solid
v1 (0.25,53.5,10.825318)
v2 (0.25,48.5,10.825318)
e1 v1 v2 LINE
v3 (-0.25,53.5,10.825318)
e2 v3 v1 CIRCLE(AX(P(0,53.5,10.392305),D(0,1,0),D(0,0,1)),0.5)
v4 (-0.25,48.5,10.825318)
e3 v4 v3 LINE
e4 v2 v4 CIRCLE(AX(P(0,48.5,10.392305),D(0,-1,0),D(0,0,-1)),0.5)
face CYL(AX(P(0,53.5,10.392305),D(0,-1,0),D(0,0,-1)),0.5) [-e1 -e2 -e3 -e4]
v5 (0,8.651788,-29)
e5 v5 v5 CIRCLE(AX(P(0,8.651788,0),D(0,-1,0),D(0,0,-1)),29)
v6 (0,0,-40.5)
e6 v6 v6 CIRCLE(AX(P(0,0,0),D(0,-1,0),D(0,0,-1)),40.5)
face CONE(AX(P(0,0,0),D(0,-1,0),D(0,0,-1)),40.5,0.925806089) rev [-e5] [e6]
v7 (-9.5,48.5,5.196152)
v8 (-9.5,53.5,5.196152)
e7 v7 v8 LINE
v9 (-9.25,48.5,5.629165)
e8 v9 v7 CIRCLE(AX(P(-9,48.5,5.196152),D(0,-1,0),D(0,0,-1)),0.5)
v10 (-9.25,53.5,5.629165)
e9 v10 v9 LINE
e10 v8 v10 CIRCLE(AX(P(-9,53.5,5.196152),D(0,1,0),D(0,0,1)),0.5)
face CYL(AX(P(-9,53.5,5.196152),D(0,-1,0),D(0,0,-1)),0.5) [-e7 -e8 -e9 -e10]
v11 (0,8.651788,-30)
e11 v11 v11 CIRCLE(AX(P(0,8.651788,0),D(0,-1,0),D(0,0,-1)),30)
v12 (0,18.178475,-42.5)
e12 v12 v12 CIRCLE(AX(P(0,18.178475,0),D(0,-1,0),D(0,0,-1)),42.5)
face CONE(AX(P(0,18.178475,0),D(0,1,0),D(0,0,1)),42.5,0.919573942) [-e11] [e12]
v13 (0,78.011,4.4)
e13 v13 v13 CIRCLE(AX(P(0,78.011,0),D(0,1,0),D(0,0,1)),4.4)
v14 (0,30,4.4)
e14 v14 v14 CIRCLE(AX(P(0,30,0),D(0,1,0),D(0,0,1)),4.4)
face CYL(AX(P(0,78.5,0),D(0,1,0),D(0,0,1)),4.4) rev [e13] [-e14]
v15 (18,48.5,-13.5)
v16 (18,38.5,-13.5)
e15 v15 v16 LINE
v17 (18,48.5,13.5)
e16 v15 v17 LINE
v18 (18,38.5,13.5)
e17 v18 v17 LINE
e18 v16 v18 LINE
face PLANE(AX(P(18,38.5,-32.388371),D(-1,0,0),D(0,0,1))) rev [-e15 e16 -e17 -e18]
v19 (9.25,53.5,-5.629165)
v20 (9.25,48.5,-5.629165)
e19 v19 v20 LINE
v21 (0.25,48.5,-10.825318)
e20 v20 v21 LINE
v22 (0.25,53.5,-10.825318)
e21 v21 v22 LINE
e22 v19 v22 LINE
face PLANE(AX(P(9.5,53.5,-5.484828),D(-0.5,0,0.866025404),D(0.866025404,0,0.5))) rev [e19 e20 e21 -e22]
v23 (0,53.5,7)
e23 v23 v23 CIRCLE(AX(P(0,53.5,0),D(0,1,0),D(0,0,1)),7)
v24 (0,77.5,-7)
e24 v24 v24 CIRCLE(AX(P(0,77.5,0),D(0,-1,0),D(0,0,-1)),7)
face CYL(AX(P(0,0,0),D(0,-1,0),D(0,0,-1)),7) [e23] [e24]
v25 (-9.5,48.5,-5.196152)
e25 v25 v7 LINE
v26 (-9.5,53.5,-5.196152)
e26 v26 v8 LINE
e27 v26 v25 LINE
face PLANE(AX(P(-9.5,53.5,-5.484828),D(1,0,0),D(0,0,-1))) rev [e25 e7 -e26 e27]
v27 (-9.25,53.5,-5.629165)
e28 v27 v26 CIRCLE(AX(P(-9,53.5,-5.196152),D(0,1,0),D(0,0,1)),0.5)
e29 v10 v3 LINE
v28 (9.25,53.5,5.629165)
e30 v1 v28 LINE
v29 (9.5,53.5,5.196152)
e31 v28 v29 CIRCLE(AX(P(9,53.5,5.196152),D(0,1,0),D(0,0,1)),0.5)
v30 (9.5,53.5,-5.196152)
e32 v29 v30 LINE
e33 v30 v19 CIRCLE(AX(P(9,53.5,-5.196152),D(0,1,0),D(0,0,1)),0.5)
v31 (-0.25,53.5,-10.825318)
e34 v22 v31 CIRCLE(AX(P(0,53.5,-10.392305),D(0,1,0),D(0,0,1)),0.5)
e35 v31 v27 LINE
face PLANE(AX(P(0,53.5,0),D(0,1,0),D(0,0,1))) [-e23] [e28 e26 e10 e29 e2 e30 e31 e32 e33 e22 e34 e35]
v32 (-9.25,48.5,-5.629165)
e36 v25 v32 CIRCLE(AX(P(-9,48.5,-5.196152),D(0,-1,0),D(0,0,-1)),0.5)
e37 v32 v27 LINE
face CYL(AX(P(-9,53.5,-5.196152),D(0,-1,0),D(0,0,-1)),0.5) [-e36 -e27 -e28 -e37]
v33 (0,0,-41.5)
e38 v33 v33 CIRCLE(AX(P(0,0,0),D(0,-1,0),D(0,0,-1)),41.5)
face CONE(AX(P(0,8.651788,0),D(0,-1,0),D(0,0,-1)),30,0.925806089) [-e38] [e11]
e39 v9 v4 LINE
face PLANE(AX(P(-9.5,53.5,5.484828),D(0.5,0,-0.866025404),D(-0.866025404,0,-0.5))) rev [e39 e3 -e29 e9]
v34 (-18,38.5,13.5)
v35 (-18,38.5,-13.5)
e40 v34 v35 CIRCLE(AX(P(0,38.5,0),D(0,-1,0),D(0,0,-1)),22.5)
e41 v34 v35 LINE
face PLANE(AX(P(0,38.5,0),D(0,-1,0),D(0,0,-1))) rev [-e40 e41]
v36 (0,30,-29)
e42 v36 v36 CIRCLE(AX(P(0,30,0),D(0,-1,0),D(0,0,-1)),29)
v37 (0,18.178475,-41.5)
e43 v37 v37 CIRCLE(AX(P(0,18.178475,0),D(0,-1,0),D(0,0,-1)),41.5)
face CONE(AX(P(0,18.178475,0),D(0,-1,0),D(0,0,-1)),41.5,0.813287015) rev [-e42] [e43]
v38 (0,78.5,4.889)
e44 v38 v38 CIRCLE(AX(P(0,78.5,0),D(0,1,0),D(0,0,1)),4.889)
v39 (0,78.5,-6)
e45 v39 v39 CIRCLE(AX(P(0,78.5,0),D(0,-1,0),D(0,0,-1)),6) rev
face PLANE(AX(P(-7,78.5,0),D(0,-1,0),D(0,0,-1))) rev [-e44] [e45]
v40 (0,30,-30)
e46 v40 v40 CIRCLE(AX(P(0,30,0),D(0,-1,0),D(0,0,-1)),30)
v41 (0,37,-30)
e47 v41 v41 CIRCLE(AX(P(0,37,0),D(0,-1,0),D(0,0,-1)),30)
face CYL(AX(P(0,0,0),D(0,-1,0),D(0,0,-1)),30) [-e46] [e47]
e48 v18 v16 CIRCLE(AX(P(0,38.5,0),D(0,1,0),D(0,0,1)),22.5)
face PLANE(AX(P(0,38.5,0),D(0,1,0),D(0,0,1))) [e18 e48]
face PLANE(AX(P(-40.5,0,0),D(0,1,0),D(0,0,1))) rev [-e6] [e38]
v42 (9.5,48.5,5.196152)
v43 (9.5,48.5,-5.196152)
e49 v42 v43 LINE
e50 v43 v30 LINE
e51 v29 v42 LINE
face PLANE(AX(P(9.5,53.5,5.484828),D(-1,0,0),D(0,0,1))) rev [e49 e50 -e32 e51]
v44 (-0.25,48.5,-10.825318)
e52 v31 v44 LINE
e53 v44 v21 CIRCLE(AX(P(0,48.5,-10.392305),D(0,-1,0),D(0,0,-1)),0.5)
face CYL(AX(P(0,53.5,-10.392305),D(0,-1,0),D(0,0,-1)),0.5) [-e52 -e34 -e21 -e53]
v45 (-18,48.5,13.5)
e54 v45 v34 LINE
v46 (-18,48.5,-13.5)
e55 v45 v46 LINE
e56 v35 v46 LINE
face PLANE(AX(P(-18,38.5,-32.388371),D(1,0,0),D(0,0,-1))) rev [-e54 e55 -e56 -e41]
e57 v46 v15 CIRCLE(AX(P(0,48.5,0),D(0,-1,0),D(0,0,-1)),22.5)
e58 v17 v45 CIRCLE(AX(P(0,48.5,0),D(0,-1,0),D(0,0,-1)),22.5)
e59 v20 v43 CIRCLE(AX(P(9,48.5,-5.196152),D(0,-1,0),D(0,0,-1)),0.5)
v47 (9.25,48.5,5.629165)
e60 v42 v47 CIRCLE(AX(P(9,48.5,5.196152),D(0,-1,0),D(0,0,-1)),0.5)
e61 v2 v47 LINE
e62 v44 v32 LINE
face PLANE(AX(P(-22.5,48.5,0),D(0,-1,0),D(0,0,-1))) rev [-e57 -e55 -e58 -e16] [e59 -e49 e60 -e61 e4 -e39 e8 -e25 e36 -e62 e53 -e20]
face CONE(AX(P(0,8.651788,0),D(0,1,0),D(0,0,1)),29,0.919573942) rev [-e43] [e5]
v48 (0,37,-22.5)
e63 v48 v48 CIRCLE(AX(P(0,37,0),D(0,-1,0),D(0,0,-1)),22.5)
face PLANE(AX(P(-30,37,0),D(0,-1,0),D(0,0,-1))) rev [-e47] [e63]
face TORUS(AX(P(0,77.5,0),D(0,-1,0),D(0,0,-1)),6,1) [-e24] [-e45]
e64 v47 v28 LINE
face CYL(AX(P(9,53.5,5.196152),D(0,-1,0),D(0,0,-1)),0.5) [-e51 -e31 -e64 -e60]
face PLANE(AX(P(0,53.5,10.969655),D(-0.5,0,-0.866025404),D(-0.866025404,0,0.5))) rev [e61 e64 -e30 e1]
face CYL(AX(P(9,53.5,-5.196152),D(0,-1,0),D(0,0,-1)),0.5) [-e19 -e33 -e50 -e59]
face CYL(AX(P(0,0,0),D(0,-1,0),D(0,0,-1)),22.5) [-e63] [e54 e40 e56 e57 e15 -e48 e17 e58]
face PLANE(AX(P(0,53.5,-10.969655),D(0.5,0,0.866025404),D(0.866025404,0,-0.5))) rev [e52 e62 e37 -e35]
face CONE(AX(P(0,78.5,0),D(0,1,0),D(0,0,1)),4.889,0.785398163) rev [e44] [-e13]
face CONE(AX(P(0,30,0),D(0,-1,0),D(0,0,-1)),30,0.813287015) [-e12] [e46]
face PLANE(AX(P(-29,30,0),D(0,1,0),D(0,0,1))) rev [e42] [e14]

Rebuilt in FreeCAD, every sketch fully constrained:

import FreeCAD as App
import Part
import Sketcher

V = App.Vector
Q = App.Units.Quantity


def edges_at(feature, points):
    """Names of the edges that pass closest to the given points."""
    edges = feature.Shape.Edges
    near = lambda p: min(range(len(edges)), key=lambda i: edges[i].distToShape(Part.Vertex(*p))[0])
    return sorted({f"Edge{near(p) + 1}" for p in points})

doc = App.newDocument("Part")
body = doc.addObject("PartDesign::Body", "Body")

# Sketch on XY plane
sketch1 = body.newObject("Sketcher::SketchObject", "Sketch")
sketch1.AttachmentSupport = (doc.getObject("XY_Plane"), [""])
sketch1.MapMode = "FlatFace"
sketch1.addGeometry([
    Part.LineSegment(V(-41.5, 0, 0), V(-40.5, 0, 0)),  # 0
    Part.LineSegment(V(-40.5, 0, 0), V(-29, 8.7, 0)),  # 1
    Part.LineSegment(V(-29, 8.7, 0), V(-41.5, 18.2, 0)),  # 2
    Part.LineSegment(V(-41.5, 18.2, 0), V(-29, 30, 0)),  # 3
    Part.LineSegment(V(-29, 30, 0), V(0, 30, 0)),  # 4
    Part.LineSegment(V(0, 30, 0), V(0, 78.5, 0)),  # 5
    Part.LineSegment(V(0, 78.5, 0), V(-7, 78.5, 0)),  # 6
    Part.LineSegment(V(-7, 78.5, 0), V(-7, 48.5, 0)),  # 7
    Part.LineSegment(V(-7, 48.5, 0), V(-22.5, 48.5, 0)),  # 8
    Part.LineSegment(V(-22.5, 48.5, 0), V(-22.5, 37, 0)),  # 9
    Part.LineSegment(V(-22.5, 37, 0), V(-30, 37, 0)),  # 10
    Part.LineSegment(V(-30, 37, 0), V(-30, 30, 0)),  # 11
    Part.LineSegment(V(-30, 30, 0), V(-42.5, 18.2, 0)),  # 12
    Part.LineSegment(V(-42.5, 18.2, 0), V(-30, 8.7, 0)),  # 13
    Part.LineSegment(V(-30, 8.7, 0), V(-41.5, 0, 0)),  # 14
], False)
sketch1.addConstraint([
    Sketcher.Constraint("Coincident", 0, 2, 1, 1),
    Sketcher.Constraint("Coincident", 1, 2, 2, 1),
    Sketcher.Constraint("Coincident", 2, 2, 3, 1),
    Sketcher.Constraint("Coincident", 3, 2, 4, 1),
    Sketcher.Constraint("Coincident", 4, 2, 5, 1),
    Sketcher.Constraint("Coincident", 5, 2, 6, 1),
    Sketcher.Constraint("Coincident", 6, 2, 7, 1),
    Sketcher.Constraint("Coincident", 7, 2, 8, 1),
    Sketcher.Constraint("Coincident", 8, 2, 9, 1),
    Sketcher.Constraint("Coincident", 9, 2, 10, 1),
    Sketcher.Constraint("Coincident", 10, 2, 11, 1),
    Sketcher.Constraint("Coincident", 11, 2, 12, 1),
    Sketcher.Constraint("Coincident", 12, 2, 13, 1),
    Sketcher.Constraint("Coincident", 13, 2, 14, 1),
    Sketcher.Constraint("Coincident", 14, 2, 0, 1),
    Sketcher.Constraint("Horizontal", 0),
    Sketcher.Constraint("Horizontal", 4),
    Sketcher.Constraint("Vertical", 5),
    Sketcher.Constraint("Horizontal", 6),
    Sketcher.Constraint("Vertical", 7),
    Sketcher.Constraint("Horizontal", 8),
    Sketcher.Constraint("Vertical", 9),
    Sketcher.Constraint("Horizontal", 10),
    Sketcher.Constraint("Vertical", 11),
    Sketcher.Constraint("PointOnObject", 0, 2, -1),
    Sketcher.Constraint("PointOnObject", 4, 2, -2),
    Sketcher.Constraint("Parallel", 3, 12),
    Sketcher.Constraint("Parallel", 2, 13),
    Sketcher.Constraint("Parallel", 1, 14),
    Sketcher.Constraint("Horizontal", 4, 2, 11, 2),
    Sketcher.Constraint("Horizontal", 2, 2, 12, 2),
    Sketcher.Constraint("Horizontal", 1, 2, 13, 2),
    Sketcher.Constraint("Vertical", 1, 2, 3, 2),
    Sketcher.Constraint("Vertical", 2, 2, 14, 2),
    Sketcher.Constraint("Equal", 6, 11),
    Sketcher.Constraint("DistanceX", 0, 1, 0, 2, 1.0),
    Sketcher.Constraint("DistanceX", 4, 1, 4, 2, 29.0),
    Sketcher.Constraint("DistanceX", 6, 2, 6, 1, 7.0),
    Sketcher.Constraint("DistanceY", 7, 2, 7, 1, 30.0),
    Sketcher.Constraint("DistanceX", 8, 2, 8, 1, 15.5),
    Sketcher.Constraint("DistanceY", 5, 1, 5, 2, 48.5),
    Sketcher.Constraint("DistanceY", -1, 1, 3, 2, 30.0),
    Sketcher.Constraint("DistanceX", 2, 2, 8, 2, 19.0),
    Sketcher.Constraint("Distance", 1, 14.391089),
    Sketcher.Constraint("Distance", 2, 15.716481),
])
revolution = body.newObject("PartDesign::Revolution", "Revolution")
revolution.Profile = sketch1
revolution.ReferenceAxis = (sketch1, ["V_Axis"])
revolution.Angle = 360

# Sketch on XZ plane
sketch2 = body.newObject("Sketcher::SketchObject", "Sketch001")
sketch2.AttachmentSupport = (doc.getObject("XZ_Plane"), [""])
sketch2.MapMode = "FlatFace"
sketch2.AttachmentOffset = App.Placement(V(0, 0, -78.5), App.Rotation())
sketch2.addGeometry(Part.Circle(V(0, 0, 0), V(0, 0, 1), 4.4), False)
sketch2.addConstraint([
    Sketcher.Constraint("Coincident", 0, 3, -1, 1),
    Sketcher.Constraint("Diameter", 0, 8.8),
])
doc.recompute()
hole = body.newObject("PartDesign::Hole", "Hole")
hole.Profile = sketch2
hole.ThreadType = "None"
hole.Diameter = 8.8
hole.DepthType = "ThroughAll"
hole.HoleCutType = "Countersink"
hole.HoleCutDiameter = 9.778
hole.HoleCutCountersinkAngle = 90
hole.Reversed = True
doc.recompute()

fillet = body.newObject("PartDesign::Fillet", "Fillet")
fillet.Base = (hole, edges_at(hole, [(0, 78.5, 7)]))
fillet.Radius = 1

# Sketch on XZ plane
sketch3 = body.newObject("Sketcher::SketchObject", "Sketch002")
sketch3.AttachmentSupport = (doc.getObject("XZ_Plane"), [""])
sketch3.MapMode = "FlatFace"
sketch3.AttachmentOffset = App.Placement(V(0, 0, -48.5), App.Rotation())
sketch3.addGeometry([
    Part.LineSegment(V(-51, -32, 0), V(-51, 32, 0)),  # 0
    Part.LineSegment(V(-51, 32, 0), V(-18, 32, 0)),  # 1
    Part.LineSegment(V(-18, 32, 0), V(-18, -32, 0)),  # 2
    Part.LineSegment(V(-18, -32, 0), V(-51, -32, 0)),  # 3
    Part.LineSegment(V(18, -32, 0), V(18, 32, 0)),  # 4
    Part.LineSegment(V(18, 32, 0), V(51, 32, 0)),  # 5
    Part.LineSegment(V(51, 32, 0), V(51, -32, 0)),  # 6
    Part.LineSegment(V(51, -32, 0), V(18, -32, 0)),  # 7
], False)
sketch3.addConstraint([
    Sketcher.Constraint("Coincident", 0, 2, 1, 1),
    Sketcher.Constraint("Coincident", 1, 2, 2, 1),
    Sketcher.Constraint("Coincident", 2, 2, 3, 1),
    Sketcher.Constraint("Coincident", 3, 2, 0, 1),
    Sketcher.Constraint("Coincident", 4, 2, 5, 1),
    Sketcher.Constraint("Coincident", 5, 2, 6, 1),
    Sketcher.Constraint("Coincident", 6, 2, 7, 1),
    Sketcher.Constraint("Coincident", 7, 2, 4, 1),
    Sketcher.Constraint("Vertical", 0),
    Sketcher.Constraint("Horizontal", 1),
    Sketcher.Constraint("Vertical", 2),
    Sketcher.Constraint("Horizontal", 3),
    Sketcher.Constraint("Vertical", 4),
    Sketcher.Constraint("Horizontal", 5),
    Sketcher.Constraint("Vertical", 6),
    Sketcher.Constraint("Horizontal", 7),
    Sketcher.Constraint("Symmetric", 1, 2, 4, 2, -2),
    Sketcher.Constraint("Symmetric", 3, 2, 6, 2, -2),
    Sketcher.Constraint("DistanceX", 1, 2, -1, 1, 18.0),
    Sketcher.Constraint("DistanceX", 1, 1, 1, 2, 32.896271),
    Sketcher.Constraint("DistanceY", 0, 1, 0, 2, 64.386051),
    Sketcher.Constraint("DistanceY", -1, 1, 0, 2, 31.997679),
])
pocket1 = body.newObject("PartDesign::Pocket", "Pocket")
pocket1.Profile = sketch3
pocket1.Length = 10
pocket1.Reversed = True

# Sketch on XZ plane
sketch4 = body.newObject("Sketcher::SketchObject", "Sketch003")
sketch4.AttachmentSupport = (doc.getObject("XZ_Plane"), [""])
sketch4.MapMode = "FlatFace"
sketch4.AttachmentOffset = App.Placement(V(0, 0, -48.5), App.Rotation())
sketch4.addGeometry([
    Part.LineSegment(V(0, -11, 0), V(-9.5, -5.5, 0)),  # 0
    Part.LineSegment(V(-9.5, -5.5, 0), V(-9.5, 5.5, 0)),  # 1
    Part.LineSegment(V(-9.5, 5.5, 0), V(0, 11, 0)),  # 2
    Part.LineSegment(V(0, 11, 0), V(9.5, 5.5, 0)),  # 3
    Part.LineSegment(V(9.5, 5.5, 0), V(9.5, -5.5, 0)),  # 4
    Part.LineSegment(V(9.5, -5.5, 0), V(0, -11, 0)),  # 5
    Part.Circle(V(0, 0, 0), V(0, 0, 1), 4.4),  # 6
], False)
sketch4.addConstraint([
    Sketcher.Constraint("Coincident", 0, 2, 1, 1),
    Sketcher.Constraint("Coincident", 1, 2, 2, 1),
    Sketcher.Constraint("Coincident", 2, 2, 3, 1),
    Sketcher.Constraint("Coincident", 3, 2, 4, 1),
    Sketcher.Constraint("Coincident", 4, 2, 5, 1),
    Sketcher.Constraint("Coincident", 5, 2, 0, 1),
    Sketcher.Constraint("Vertical", 1),
    Sketcher.Constraint("Vertical", 4),
    Sketcher.Constraint("Coincident", 6, 3, -1, 1),
    Sketcher.Constraint("Symmetric", 0, 2, 3, 2, -1, 1),
    Sketcher.Constraint("Symmetric", 2, 2, 5, 2, -1, 1),
    Sketcher.Constraint("PointOnObject", 2, 2, -2),
    Sketcher.Constraint("Parallel", 2, 5),
    Sketcher.Constraint("Horizontal", 1, 2, 3, 2),
    Sketcher.Constraint("Diameter", 6, 8.8),
    Sketcher.Constraint("Angle", 0, Q("150 deg")),
    Sketcher.Constraint("DistanceX", 1, 2, 3, 2, 19.0),
    Sketcher.Constraint("DistanceY", 1, 1, 1, 2, 10.969655),
])
pad1 = body.newObject("PartDesign::Pad", "Pad")
pad1.Profile = sketch4
pad1.Length = 5
pad1.Reversed = True
doc.recompute()

fillet2 = body.newObject("PartDesign::Fillet", "Fillet001")
fillet2.Base = (pad1, edges_at(pad1, [
    (9.5, 51, -5.485),
    (0, 51, -10.97),
    (-9.5, 51, -5.485),
    (-9.5, 51, 5.485),
    (0, 51, 10.97),
    (9.5, 51, 5.485),
]))
fillet2.Radius = 0.5

doc.recompute()
